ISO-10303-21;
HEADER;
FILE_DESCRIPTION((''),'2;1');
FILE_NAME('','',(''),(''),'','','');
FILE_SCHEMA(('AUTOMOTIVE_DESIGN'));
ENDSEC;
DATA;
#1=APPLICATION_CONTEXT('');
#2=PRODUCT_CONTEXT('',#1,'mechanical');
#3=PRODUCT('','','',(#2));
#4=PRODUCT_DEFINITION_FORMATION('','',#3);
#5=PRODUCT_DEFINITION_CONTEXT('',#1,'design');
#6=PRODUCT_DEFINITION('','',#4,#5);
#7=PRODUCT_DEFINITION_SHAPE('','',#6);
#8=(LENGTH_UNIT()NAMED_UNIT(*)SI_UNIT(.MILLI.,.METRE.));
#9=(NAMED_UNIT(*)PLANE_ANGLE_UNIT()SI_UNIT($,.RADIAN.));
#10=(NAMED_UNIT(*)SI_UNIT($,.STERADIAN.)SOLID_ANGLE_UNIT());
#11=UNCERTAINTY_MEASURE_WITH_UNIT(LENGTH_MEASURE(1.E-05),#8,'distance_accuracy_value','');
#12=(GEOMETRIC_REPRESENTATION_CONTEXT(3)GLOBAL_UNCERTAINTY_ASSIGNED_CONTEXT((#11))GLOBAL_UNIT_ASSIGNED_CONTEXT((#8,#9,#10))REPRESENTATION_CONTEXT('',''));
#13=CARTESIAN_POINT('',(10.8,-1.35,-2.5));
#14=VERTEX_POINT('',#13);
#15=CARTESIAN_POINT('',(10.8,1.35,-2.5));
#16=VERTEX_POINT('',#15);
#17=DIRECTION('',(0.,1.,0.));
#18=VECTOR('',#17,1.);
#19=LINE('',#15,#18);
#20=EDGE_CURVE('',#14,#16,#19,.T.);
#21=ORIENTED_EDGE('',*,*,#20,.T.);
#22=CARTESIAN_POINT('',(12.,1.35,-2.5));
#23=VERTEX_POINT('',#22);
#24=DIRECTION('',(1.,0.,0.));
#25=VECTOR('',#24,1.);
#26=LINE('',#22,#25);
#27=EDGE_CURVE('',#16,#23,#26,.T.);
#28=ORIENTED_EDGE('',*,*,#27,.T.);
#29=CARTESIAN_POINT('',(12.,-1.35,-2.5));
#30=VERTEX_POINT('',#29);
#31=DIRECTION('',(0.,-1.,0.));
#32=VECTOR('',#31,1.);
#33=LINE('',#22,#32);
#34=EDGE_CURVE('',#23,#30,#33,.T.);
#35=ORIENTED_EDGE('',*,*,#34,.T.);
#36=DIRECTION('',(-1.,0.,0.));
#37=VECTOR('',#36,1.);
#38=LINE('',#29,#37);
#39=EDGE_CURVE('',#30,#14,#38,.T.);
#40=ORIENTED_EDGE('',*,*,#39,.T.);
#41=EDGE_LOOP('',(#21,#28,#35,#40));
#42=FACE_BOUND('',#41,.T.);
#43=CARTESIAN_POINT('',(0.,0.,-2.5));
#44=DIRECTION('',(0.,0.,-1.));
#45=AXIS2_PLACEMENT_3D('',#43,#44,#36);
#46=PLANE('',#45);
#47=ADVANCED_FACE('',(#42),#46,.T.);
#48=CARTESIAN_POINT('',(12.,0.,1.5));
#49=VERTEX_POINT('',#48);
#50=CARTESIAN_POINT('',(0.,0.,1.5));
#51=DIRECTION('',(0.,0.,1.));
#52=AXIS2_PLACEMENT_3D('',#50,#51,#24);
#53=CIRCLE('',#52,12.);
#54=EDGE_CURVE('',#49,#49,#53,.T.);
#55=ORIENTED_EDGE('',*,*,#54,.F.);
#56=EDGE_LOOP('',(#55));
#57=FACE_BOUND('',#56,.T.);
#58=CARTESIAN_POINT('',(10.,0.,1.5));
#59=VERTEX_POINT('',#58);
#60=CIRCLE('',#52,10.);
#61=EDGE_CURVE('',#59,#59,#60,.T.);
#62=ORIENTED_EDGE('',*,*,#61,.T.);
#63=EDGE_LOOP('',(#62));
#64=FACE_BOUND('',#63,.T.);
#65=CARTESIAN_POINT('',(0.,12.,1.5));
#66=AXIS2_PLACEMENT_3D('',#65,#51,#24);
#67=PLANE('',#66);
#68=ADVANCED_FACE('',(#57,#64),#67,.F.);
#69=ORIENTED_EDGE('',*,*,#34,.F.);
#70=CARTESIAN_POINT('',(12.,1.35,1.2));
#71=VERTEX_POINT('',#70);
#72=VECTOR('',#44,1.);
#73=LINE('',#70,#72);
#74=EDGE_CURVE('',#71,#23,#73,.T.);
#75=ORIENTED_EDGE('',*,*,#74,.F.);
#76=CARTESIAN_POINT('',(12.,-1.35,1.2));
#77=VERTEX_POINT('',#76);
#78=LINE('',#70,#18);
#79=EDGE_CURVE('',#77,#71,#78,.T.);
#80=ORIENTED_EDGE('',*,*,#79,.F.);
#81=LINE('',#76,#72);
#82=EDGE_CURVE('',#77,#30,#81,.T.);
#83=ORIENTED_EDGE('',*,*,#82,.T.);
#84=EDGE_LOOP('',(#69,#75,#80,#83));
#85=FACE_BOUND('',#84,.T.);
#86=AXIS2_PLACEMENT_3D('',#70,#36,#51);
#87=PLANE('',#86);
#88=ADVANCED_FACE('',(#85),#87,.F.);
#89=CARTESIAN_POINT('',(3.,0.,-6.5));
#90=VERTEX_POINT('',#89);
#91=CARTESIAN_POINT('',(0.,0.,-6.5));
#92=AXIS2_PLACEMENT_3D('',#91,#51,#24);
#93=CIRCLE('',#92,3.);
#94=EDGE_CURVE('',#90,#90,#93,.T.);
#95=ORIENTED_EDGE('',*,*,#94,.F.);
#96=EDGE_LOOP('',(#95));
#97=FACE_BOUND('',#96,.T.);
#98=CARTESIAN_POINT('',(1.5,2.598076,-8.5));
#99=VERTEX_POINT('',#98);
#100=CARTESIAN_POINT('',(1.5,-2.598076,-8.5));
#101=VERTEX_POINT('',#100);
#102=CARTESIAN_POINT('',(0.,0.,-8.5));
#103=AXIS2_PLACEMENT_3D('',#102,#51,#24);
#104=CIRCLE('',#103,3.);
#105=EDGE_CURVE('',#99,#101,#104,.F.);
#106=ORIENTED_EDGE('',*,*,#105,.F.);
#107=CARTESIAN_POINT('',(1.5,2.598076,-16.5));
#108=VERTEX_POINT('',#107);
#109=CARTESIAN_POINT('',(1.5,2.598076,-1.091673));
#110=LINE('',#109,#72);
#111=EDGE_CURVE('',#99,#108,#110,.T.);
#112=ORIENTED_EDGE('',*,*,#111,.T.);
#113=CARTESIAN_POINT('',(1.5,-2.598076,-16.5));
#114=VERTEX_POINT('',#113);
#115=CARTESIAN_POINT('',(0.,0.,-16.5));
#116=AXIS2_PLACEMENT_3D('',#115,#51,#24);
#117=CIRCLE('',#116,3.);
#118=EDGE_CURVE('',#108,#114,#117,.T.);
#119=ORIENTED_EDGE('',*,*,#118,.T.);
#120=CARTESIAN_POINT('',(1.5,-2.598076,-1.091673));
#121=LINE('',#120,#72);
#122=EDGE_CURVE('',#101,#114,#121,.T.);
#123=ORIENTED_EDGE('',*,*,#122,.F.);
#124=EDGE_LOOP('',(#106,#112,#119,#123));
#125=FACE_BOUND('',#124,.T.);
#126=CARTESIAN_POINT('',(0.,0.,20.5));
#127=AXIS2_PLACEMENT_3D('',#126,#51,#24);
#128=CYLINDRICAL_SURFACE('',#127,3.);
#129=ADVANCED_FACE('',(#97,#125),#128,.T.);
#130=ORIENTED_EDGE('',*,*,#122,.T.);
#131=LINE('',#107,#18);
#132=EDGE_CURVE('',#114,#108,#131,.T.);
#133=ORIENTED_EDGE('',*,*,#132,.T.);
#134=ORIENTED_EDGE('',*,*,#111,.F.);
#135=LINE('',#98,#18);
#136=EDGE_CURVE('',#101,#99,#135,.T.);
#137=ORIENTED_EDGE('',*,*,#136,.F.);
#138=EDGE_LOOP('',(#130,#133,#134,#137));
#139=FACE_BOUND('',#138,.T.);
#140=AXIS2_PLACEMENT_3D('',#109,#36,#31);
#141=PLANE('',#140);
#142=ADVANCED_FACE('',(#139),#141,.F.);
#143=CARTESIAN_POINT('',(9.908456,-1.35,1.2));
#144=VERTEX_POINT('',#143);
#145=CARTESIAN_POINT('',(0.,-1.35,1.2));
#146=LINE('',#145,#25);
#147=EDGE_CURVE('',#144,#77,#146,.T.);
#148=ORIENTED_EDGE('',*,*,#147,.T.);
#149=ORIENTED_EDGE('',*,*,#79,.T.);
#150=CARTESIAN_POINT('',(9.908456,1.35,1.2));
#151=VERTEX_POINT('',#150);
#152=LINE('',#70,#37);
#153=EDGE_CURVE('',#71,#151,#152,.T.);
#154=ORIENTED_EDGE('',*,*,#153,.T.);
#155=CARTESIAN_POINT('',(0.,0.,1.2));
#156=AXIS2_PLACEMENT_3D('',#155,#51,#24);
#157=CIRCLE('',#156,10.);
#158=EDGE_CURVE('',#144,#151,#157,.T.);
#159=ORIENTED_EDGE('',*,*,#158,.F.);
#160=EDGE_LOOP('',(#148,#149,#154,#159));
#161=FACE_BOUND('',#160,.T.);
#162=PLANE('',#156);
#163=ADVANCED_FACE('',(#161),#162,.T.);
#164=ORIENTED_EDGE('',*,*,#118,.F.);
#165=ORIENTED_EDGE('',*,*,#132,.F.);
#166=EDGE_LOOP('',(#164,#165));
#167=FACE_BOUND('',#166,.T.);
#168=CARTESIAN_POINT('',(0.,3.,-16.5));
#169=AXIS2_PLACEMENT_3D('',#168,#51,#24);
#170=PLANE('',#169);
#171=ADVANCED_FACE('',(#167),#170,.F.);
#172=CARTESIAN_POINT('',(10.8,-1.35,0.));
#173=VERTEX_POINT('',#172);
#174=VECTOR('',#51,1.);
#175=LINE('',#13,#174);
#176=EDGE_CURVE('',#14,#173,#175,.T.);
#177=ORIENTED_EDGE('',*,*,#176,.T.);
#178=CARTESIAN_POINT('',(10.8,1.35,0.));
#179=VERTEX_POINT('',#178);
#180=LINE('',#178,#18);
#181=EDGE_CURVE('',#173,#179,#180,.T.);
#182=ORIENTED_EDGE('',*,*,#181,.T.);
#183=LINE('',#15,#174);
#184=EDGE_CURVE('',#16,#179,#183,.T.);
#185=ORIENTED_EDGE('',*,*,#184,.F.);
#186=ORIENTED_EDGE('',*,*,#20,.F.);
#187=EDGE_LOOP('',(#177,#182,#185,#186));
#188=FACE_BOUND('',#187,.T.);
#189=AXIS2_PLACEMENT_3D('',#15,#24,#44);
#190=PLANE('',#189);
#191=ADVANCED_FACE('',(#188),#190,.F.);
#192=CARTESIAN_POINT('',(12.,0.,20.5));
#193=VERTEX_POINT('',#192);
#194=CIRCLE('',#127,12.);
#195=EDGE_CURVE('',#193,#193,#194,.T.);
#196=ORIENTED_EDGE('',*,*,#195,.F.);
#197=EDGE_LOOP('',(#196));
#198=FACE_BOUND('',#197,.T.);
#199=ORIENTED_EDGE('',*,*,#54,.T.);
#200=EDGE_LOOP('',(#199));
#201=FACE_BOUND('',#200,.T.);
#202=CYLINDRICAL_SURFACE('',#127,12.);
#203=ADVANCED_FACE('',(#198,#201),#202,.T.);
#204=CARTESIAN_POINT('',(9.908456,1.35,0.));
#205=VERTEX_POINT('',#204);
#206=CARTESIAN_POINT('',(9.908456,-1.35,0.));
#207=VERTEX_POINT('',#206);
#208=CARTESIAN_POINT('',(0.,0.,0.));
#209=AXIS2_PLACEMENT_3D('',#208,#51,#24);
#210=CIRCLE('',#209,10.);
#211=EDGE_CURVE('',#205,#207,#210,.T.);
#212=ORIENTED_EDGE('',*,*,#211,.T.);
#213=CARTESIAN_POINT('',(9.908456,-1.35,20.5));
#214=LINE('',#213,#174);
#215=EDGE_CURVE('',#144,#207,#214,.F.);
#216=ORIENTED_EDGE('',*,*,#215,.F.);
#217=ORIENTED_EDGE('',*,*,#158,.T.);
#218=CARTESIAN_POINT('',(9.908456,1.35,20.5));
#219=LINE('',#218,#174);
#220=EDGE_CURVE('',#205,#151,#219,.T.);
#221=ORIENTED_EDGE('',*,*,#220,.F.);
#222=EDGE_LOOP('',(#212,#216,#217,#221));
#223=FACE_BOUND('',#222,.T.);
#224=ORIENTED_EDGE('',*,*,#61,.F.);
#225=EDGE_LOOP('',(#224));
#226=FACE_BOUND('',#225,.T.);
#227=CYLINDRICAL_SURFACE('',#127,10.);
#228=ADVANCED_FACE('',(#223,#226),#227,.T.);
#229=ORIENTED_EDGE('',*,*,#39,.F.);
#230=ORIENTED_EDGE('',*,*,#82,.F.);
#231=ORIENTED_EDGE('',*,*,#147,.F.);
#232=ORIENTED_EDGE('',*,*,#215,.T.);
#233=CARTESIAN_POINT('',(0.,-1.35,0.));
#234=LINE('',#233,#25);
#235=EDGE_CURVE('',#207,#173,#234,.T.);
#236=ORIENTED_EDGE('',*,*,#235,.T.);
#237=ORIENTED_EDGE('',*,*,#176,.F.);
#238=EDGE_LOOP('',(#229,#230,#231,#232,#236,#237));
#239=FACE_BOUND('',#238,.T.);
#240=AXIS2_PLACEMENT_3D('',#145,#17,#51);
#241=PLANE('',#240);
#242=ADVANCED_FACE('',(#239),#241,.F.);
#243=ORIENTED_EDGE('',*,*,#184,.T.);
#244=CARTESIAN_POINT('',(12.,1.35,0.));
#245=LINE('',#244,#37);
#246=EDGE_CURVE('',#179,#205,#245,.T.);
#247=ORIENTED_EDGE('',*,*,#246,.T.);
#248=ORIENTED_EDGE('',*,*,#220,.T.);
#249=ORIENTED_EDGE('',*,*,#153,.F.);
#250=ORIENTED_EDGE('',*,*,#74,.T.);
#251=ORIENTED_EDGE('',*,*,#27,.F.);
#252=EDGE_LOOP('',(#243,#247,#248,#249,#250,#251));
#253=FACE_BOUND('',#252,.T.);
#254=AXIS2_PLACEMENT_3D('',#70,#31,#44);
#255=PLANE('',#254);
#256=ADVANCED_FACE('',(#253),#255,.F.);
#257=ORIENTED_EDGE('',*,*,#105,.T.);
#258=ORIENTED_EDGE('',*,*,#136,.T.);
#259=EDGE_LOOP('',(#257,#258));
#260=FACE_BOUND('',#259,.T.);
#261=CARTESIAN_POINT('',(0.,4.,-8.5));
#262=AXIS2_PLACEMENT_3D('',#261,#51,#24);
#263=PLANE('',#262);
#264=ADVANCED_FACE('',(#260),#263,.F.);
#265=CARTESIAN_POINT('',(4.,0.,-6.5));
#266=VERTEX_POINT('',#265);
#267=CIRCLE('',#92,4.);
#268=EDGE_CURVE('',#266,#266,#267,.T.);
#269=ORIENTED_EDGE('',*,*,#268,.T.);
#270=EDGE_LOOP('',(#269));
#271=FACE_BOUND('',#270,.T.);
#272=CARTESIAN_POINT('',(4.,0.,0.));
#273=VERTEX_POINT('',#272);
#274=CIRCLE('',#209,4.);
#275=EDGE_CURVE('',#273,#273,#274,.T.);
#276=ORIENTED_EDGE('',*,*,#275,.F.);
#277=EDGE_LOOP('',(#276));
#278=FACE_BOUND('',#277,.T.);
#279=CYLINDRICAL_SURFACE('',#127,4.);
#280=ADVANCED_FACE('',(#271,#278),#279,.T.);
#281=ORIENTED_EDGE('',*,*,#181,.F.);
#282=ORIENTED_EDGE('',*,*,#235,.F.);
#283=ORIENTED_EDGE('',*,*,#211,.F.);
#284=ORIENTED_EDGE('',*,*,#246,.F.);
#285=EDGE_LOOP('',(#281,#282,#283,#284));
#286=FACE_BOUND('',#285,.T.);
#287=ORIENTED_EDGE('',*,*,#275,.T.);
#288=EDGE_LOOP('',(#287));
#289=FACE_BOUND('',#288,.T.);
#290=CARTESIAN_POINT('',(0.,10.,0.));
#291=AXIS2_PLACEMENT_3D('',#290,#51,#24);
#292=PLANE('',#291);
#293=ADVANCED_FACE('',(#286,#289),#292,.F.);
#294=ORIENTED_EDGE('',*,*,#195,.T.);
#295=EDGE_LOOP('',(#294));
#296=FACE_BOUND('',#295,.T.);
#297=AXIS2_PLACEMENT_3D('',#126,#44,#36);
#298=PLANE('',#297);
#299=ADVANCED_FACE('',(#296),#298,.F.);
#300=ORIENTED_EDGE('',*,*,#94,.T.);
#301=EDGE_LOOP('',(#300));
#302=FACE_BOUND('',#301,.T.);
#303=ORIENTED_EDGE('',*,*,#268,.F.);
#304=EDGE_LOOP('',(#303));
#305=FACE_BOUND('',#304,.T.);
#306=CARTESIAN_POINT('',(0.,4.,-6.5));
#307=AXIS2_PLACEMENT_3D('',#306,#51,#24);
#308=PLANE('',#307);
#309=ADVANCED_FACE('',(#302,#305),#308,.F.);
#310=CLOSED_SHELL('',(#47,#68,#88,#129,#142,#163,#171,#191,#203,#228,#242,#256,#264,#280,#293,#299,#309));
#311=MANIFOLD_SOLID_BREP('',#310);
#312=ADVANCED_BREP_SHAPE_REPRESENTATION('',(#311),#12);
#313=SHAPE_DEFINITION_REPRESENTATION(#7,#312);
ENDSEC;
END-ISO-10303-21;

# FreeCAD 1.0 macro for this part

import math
import FreeCAD as App
import Part
import Sketcher
from FreeCAD import Vector

doc = App.newDocument("Part")
body = doc.addObject("PartDesign::Body", "Body")

# Sketch on YZ plane
sketch1 = doc.addObject("Sketcher::SketchObject", "Sketch")
body.addObject(sketch1)
sketch1.AttachmentSupport = (doc.YZ_Plane, [""])
sketch1.MapMode = "FlatFace"
sketch1.addGeometry([
    Part.LineSegment(Vector(12, 20.5, 0), Vector(0, 20.5, 0)),  # 0
    Part.LineSegment(Vector(0, 20.5, 0), Vector(0, -16.5, 0)),  # 1
    Part.LineSegment(Vector(0, -16.5, 0), Vector(3, -16.5, 0)),  # 2
    Part.LineSegment(Vector(3, -16.5, 0), Vector(3, -6.5, 0)),  # 3
    Part.LineSegment(Vector(3, -6.5, 0), Vector(4, -6.5, 0)),  # 4
    Part.LineSegment(Vector(4, -6.5, 0), Vector(4, 0, 0)),  # 5
    Part.LineSegment(Vector(4, 0, 0), Vector(10, 0, 0)),  # 6
    Part.LineSegment(Vector(10, 0, 0), Vector(10, 1.5, 0)),  # 7
    Part.LineSegment(Vector(10, 1.5, 0), Vector(12, 1.5, 0)),  # 8
    Part.LineSegment(Vector(12, 1.5, 0), Vector(12, 20.5, 0)),  # 9
], False)
sketch1.addConstraint([
    Sketcher.Constraint("Coincident", 0, 2, 1, 1),
    Sketcher.Constraint("Coincident", 1, 2, 2, 1),
    Sketcher.Constraint("Coincident", 2, 2, 3, 1),
    Sketcher.Constraint("Coincident", 3, 2, 4, 1),
    Sketcher.Constraint("Coincident", 4, 2, 5, 1),
    Sketcher.Constraint("Coincident", 5, 2, 6, 1),
    Sketcher.Constraint("Coincident", 6, 2, 7, 1),
    Sketcher.Constraint("Coincident", 7, 2, 8, 1),
    Sketcher.Constraint("Coincident", 8, 2, 9, 1),
    Sketcher.Constraint("Coincident", 9, 2, 0, 1),
    Sketcher.Constraint("Horizontal", 0),
    Sketcher.Constraint("Vertical", 1),
    Sketcher.Constraint("Horizontal", 2),
    Sketcher.Constraint("Vertical", 3),
    Sketcher.Constraint("Horizontal", 4),
    Sketcher.Constraint("Vertical", 5),
    Sketcher.Constraint("Horizontal", 6),
    Sketcher.Constraint("Vertical", 7),
    Sketcher.Constraint("Horizontal", 8),
    Sketcher.Constraint("Vertical", 9),
    Sketcher.Constraint("PointOnObject", 0, 2, -2),
    Sketcher.Constraint("PointOnObject", 5, 2, -1),
    Sketcher.Constraint("DistanceX", 0, 2, 0, 1, 12.0),
    Sketcher.Constraint("DistanceX", 2, 1, 2, 2, 3.0),
    Sketcher.Constraint("DistanceX", 4, 1, 4, 2, 1.0),
    Sketcher.Constraint("DistanceX", 6, 1, 6, 2, 6.0),
    Sketcher.Constraint("DistanceY", 1, 2, 1, 1, 37.0),
    Sketcher.Constraint("DistanceY", 3, 1, 3, 2, 10.0),
    Sketcher.Constraint("DistanceY", 9, 1, 9, 2, 19.0),
    Sketcher.Constraint("DistanceY", 5, 1, 5, 2, 6.5),
])
revolution = doc.addObject("PartDesign::Revolution", "Revolution")
body.addObject(revolution)
revolution.Profile = sketch1
revolution.ReferenceAxis = (sketch1, ["V_Axis"])
revolution.Angle = 360
body2 = doc.addObject("PartDesign::Body", "Body001")

# Sketch on XY plane
sketch2 = doc.addObject("Sketcher::SketchObject", "Sketch001")
body2.addObject(sketch2)
sketch2.AttachmentSupport = (doc.getObject("XY_Plane001"), [""])
sketch2.MapMode = "FlatFace"
sketch2.addGeometry([
    Part.LineSegment(Vector(12, 1.4, 0), Vector(12, -1.4, 0)),
    Part.LineSegment(Vector(12, -1.4, 0), Vector(10.8, -1.4, 0)),
    Part.LineSegment(Vector(10.8, -1.4, 0), Vector(10.8, 1.4, 0)),
    Part.LineSegment(Vector(10.8, 1.4, 0), Vector(12, 1.4, 0)),
], False)
sketch2.addConstraint([
    Sketcher.Constraint("Coincident", 0, 2, 1, 1),
    Sketcher.Constraint("Coincident", 1, 2, 2, 1),
    Sketcher.Constraint("Coincident", 2, 2, 3, 1),
    Sketcher.Constraint("Coincident", 3, 2, 0, 1),
    Sketcher.Constraint("Vertical", 0),
    Sketcher.Constraint("Horizontal", 1),
    Sketcher.Constraint("Vertical", 2),
    Sketcher.Constraint("Horizontal", 3),
    Sketcher.Constraint("DistanceX", 1, 2, 1, 1, 1.2),
    Sketcher.Constraint("DistanceY", 0, 2, 0, 1, 2.7),
    Sketcher.Constraint("DistanceX", -1, 1, 0, 2, 12.0),
    Sketcher.Constraint("DistanceY", 0, 2, -1, 1, 1.35),
])
pad1 = doc.addObject("PartDesign::Pad", "Pad")
body2.addObject(pad1)
pad1.Profile = sketch2
pad1.Length = 2.5
pad1.Reversed = True
body.AllowCompound = True
doc.recompute()

boolean = doc.addObject("PartDesign::Boolean", "Boolean")
body.addObject(boolean)
boolean.Type = "Fuse"
boolean.addObjects([body2])

# Sketch on XY plane
sketch3 = doc.addObject("Sketcher::SketchObject", "Sketch002")
body.addObject(sketch3)
sketch3.AttachmentSupport = (doc.XY_Plane, [""])
sketch3.MapMode = "FlatFace"
sketch3.addGeometry([
    Part.LineSegment(Vector(0, 1.4, 0), Vector(0, -1.4, 0)),
    Part.LineSegment(Vector(0, -1.4, 0), Vector(12, -1.4, 0)),
    Part.LineSegment(Vector(12, -1.4, 0), Vector(12, 1.4, 0)),
    Part.LineSegment(Vector(12, 1.4, 0), Vector(0, 1.4, 0)),
], False)
sketch3.addConstraint([
    Sketcher.Constraint("Coincident", 0, 2, 1, 1),
    Sketcher.Constraint("Coincident", 1, 2, 2, 1),
    Sketcher.Constraint("Coincident", 2, 2, 3, 1),
    Sketcher.Constraint("Coincident", 3, 2, 0, 1),
    Sketcher.Constraint("Vertical", 0),
    Sketcher.Constraint("Horizontal", 1),
    Sketcher.Constraint("Vertical", 2),
    Sketcher.Constraint("Horizontal", 3),
    Sketcher.Constraint("Symmetric", 0, 2, 3, 2, -1, 1),
    Sketcher.Constraint("DistanceX", 1, 1, 1, 2, 12.0),
    Sketcher.Constraint("DistanceY", 0, 2, 0, 1, 2.7),
])
pad2 = doc.addObject("PartDesign::Pad", "Pad001")
body.addObject(pad2)
pad2.Profile = sketch3
pad2.Length = 1.2

# Sketch on XY plane
sketch4 = doc.addObject("Sketcher::SketchObject", "Sketch003")
body.addObject(sketch4)
sketch4.AttachmentSupport = (doc.XY_Plane, [""])
sketch4.MapMode = "FlatFace"
sketch4.AttachmentOffset = App.Placement(Vector(0, 0, -16.5), App.Rotation())
sketch4.addGeometry([
    Part.LineSegment(Vector(1.5, -2.6, 0), Vector(1.5, 2.6, 0)),
    Part.ArcOfCircle(Part.Circle(Vector(0, 0, 0), Vector(0, 0, 1), 3), math.radians(-60), math.radians(60)),
], False)
sketch4.addConstraint([
    Sketcher.Constraint("Coincident", 0, 1, 1, 1),
    Sketcher.Constraint("Coincident", 1, 2, 0, 2),
    Sketcher.Constraint("Vertical", 0),
    Sketcher.Constraint("Coincident", 1, 3, -1, 1),
    Sketcher.Constraint("Radius", 1, 3.0),
    Sketcher.Constraint("DistanceX", -1, 1, 0, 1, 1.5),
])
pocket1 = doc.addObject("PartDesign::Pocket", "Pocket")
body.addObject(pocket1)
pocket1.Profile = sketch4
pocket1.Length = 8
pocket1.Reversed = True

doc.recompute()
